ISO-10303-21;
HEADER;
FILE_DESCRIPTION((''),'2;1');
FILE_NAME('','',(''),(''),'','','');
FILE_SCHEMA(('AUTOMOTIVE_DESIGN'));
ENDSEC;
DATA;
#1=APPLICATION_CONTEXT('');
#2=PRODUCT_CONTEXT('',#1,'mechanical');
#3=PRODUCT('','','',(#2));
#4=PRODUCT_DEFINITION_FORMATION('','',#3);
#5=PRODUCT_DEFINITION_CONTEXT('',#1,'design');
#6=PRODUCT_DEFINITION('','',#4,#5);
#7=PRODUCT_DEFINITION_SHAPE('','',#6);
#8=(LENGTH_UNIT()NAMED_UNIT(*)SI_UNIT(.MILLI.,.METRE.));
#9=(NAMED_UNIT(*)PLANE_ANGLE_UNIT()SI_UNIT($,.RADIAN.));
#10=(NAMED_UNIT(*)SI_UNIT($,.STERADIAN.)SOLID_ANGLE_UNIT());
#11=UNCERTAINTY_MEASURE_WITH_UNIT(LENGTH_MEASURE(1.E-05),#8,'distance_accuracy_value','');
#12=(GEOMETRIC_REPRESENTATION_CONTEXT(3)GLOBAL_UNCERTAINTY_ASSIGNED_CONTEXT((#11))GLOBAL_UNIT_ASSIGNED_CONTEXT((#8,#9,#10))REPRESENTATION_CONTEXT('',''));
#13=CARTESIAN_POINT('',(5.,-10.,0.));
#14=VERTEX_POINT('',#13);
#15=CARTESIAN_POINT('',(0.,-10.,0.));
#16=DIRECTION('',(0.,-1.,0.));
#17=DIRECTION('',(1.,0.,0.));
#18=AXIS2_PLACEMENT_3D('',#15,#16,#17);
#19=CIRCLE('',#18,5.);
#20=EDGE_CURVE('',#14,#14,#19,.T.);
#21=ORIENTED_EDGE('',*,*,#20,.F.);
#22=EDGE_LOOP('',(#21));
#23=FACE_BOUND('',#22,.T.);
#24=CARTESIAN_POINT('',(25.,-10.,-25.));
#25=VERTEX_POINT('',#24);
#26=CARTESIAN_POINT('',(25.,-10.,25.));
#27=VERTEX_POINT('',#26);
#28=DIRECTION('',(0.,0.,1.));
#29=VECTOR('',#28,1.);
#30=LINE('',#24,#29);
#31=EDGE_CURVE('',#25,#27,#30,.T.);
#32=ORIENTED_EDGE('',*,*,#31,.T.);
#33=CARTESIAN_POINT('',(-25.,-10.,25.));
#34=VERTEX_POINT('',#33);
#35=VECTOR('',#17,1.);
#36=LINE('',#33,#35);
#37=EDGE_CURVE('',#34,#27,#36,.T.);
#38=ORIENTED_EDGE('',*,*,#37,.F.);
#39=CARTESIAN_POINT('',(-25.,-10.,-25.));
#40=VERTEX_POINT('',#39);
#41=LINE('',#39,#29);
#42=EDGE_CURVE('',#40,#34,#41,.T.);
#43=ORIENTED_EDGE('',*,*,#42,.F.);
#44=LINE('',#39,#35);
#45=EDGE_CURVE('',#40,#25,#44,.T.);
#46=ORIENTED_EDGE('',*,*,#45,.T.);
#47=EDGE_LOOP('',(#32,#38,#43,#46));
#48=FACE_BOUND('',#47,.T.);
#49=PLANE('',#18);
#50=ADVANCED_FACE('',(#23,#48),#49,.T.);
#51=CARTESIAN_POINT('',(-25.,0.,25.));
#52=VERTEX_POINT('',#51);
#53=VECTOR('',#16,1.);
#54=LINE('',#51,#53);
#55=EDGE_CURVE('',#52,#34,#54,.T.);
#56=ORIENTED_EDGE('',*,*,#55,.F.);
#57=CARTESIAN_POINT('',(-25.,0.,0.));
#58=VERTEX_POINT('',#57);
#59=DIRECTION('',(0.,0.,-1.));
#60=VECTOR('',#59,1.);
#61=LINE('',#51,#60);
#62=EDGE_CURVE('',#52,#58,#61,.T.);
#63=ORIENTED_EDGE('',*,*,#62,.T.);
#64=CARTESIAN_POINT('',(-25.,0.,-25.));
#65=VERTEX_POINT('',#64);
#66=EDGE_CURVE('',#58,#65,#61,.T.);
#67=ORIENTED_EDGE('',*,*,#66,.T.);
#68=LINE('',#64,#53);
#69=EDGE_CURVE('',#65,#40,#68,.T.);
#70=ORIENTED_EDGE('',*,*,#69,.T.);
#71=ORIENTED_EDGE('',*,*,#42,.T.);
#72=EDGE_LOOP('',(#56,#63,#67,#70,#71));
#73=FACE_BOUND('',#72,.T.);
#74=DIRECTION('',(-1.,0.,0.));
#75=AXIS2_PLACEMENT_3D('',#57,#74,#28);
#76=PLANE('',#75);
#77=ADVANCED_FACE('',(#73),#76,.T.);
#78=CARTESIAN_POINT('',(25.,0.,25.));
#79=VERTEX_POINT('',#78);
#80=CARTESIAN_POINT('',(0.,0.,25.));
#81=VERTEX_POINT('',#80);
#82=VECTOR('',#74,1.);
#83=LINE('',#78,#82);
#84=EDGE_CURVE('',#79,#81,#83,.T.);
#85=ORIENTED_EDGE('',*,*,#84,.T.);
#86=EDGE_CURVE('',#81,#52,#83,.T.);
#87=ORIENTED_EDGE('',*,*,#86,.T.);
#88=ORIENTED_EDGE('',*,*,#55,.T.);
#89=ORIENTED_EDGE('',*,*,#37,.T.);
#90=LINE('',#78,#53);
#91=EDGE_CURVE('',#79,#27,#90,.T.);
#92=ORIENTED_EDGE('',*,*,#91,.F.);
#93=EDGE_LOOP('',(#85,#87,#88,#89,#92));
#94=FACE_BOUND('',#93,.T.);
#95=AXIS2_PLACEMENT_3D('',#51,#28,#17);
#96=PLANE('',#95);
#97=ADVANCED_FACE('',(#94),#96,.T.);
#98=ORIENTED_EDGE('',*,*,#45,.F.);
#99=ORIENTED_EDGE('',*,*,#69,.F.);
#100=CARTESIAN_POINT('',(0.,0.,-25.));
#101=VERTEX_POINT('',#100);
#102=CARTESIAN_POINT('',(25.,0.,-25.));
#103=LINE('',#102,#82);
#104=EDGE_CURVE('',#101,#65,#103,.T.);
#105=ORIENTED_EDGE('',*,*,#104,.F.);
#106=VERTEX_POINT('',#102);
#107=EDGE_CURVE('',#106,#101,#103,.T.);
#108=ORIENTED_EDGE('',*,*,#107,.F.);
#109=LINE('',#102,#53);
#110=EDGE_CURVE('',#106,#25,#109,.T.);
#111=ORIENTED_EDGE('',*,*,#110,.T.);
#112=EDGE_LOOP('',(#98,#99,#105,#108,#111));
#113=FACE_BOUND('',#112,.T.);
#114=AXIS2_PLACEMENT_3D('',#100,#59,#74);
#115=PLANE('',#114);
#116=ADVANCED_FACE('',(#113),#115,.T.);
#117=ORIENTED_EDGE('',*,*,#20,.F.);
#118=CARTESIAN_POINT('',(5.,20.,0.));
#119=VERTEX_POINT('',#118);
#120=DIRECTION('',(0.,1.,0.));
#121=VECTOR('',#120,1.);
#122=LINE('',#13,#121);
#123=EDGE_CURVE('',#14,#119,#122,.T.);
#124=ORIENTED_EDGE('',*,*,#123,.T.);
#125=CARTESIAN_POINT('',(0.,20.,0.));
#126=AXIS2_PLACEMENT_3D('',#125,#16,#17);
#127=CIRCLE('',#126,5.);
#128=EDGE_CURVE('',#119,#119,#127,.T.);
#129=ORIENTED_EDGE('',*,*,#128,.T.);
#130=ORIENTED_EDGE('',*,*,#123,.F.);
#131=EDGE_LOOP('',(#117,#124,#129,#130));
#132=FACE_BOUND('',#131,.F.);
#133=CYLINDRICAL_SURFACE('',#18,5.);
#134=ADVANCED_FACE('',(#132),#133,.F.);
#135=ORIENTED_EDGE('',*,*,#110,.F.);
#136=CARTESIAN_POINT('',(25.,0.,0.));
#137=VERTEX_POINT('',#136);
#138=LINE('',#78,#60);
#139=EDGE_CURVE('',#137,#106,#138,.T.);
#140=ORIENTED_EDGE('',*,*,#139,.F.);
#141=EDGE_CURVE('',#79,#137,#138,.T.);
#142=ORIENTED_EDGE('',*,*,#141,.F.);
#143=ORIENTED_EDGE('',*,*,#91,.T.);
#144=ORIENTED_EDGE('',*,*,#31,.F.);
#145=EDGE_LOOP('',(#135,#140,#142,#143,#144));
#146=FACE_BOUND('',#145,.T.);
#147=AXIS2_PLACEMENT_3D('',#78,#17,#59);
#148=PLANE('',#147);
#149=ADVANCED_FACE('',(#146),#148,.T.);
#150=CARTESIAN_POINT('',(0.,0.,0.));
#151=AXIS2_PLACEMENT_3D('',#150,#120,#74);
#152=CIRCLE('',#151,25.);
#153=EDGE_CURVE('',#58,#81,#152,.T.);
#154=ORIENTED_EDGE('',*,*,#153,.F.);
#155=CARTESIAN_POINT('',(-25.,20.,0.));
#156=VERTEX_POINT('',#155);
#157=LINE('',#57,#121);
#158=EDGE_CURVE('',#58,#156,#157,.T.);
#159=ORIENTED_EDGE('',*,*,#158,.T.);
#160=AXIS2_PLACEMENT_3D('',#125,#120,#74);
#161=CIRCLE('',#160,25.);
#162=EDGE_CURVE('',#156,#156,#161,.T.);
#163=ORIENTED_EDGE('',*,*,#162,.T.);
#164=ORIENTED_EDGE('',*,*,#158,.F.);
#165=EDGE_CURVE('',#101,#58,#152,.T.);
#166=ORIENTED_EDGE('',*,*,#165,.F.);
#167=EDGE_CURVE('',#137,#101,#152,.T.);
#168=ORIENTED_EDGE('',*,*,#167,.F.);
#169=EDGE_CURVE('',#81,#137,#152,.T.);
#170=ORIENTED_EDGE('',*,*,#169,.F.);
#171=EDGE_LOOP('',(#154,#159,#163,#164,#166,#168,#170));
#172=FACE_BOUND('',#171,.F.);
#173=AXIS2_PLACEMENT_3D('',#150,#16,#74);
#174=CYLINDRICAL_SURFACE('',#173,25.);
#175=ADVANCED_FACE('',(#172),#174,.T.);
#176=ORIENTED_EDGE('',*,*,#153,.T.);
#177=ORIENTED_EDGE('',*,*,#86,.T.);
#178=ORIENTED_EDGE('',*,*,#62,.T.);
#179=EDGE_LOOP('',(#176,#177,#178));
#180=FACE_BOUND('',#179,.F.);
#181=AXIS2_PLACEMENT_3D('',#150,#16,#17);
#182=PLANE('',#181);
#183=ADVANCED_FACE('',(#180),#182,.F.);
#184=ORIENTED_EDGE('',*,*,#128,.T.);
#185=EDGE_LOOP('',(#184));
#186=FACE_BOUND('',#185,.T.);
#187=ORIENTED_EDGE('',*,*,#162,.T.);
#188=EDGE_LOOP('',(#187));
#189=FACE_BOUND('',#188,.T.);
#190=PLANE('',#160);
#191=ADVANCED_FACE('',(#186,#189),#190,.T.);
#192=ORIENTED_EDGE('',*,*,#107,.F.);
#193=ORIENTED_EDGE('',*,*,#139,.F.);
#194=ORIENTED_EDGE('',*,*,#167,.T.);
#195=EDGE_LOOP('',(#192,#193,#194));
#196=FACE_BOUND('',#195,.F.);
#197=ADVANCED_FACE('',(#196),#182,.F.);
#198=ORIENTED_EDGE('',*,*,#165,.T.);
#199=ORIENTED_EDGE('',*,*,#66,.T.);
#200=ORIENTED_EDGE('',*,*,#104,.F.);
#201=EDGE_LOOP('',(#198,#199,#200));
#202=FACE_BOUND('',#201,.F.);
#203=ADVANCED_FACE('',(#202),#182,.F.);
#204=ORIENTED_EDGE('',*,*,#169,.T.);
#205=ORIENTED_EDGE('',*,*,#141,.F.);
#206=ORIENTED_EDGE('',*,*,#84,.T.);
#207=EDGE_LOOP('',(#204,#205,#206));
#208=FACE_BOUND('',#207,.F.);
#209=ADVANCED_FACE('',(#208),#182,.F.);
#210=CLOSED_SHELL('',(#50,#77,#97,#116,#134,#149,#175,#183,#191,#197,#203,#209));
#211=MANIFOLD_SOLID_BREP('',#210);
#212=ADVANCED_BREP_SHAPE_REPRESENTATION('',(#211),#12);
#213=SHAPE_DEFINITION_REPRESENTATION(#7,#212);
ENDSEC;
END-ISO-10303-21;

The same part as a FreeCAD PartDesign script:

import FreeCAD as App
import Part
import Sketcher

V = App.Vector
Q = App.Units.Quantity


def add_polygon(sketch, points):
    """Adds a closed chain of lines whose ends are joined by coincident constraints."""
    first, n = sketch.GeometryCount, len(points)
    for a, b in zip(points, points[1:] + points[:1]):
        sketch.addGeometry(Part.LineSegment(App.Vector(*a, 0), App.Vector(*b, 0)), False)
    for i in range(n):
        sketch.addConstraint(Sketcher.Constraint("Coincident", first + i, 2, first + (i + 1) % n, 1))

doc = App.newDocument("Part")
body = doc.addObject("PartDesign::Body", "Body")

# Sketch on XZ plane
sketch1 = body.newObject("Sketcher::SketchObject", "Sketch")
sketch1.AttachmentSupport = (doc.getObject("XZ_Plane"), [""])
sketch1.MapMode = "FlatFace"
sketch1.addGeometry(Part.Circle(V(0, 0, 0), V(0, 0, 1), 25), False)
sketch1.addConstraint([
    Sketcher.Constraint("Coincident", 0, 3, -1, 1),
    Sketcher.Constraint("Diameter", 0, Q("50 mm")),
])
pad1 = body.newObject("PartDesign::Pad", "Pad")
pad1.Profile = sketch1
pad1.Length = 20
pad1.Reversed = True

# Sketch on XZ plane
sketch2 = body.newObject("Sketcher::SketchObject", "Sketch001")
sketch2.AttachmentSupport = (doc.getObject("XZ_Plane"), [""])
sketch2.MapMode = "FlatFace"
add_polygon(sketch2, [(-25, 25), (-25, -25), (25, -25), (25, 25)])  # lines 0-3
sketch2.addConstraint([
    Sketcher.Constraint("Vertical", 0),
    Sketcher.Constraint("Horizontal", 1),
    Sketcher.Constraint("Vertical", 2),
    Sketcher.Constraint("Horizontal", 3),
    Sketcher.Constraint("Symmetric", 0, 2, 2, 2, -1, 1),
    Sketcher.Constraint("Equal", 3, 0),
    Sketcher.Constraint("DistanceX", 1, 1, 1, 2, Q("50 mm")),
])
pad2 = body.newObject("PartDesign::Pad", "Pad001")
pad2.Profile = sketch2
pad2.Length = 10

# Sketch on XZ plane
sketch3 = body.newObject("Sketcher::SketchObject", "Sketch002")
sketch3.AttachmentSupport = (doc.getObject("XZ_Plane"), [""])
sketch3.MapMode = "FlatFace"
sketch3.AttachmentOffset = App.Placement(V(0, 0, 10), App.Rotation())
sketch3.addGeometry(Part.Circle(V(0, 0, 0), V(0, 0, 1), 5), False)
sketch3.addConstraint([
    Sketcher.Constraint("Coincident", 0, 3, -1, 1),
    Sketcher.Constraint("Diameter", 0, Q("10 mm")),
])
pocket1 = body.newObject("PartDesign::Pocket", "Pocket")
pocket1.Profile = sketch3
pocket1.Type = "UpToFirst"

doc.recompute()
